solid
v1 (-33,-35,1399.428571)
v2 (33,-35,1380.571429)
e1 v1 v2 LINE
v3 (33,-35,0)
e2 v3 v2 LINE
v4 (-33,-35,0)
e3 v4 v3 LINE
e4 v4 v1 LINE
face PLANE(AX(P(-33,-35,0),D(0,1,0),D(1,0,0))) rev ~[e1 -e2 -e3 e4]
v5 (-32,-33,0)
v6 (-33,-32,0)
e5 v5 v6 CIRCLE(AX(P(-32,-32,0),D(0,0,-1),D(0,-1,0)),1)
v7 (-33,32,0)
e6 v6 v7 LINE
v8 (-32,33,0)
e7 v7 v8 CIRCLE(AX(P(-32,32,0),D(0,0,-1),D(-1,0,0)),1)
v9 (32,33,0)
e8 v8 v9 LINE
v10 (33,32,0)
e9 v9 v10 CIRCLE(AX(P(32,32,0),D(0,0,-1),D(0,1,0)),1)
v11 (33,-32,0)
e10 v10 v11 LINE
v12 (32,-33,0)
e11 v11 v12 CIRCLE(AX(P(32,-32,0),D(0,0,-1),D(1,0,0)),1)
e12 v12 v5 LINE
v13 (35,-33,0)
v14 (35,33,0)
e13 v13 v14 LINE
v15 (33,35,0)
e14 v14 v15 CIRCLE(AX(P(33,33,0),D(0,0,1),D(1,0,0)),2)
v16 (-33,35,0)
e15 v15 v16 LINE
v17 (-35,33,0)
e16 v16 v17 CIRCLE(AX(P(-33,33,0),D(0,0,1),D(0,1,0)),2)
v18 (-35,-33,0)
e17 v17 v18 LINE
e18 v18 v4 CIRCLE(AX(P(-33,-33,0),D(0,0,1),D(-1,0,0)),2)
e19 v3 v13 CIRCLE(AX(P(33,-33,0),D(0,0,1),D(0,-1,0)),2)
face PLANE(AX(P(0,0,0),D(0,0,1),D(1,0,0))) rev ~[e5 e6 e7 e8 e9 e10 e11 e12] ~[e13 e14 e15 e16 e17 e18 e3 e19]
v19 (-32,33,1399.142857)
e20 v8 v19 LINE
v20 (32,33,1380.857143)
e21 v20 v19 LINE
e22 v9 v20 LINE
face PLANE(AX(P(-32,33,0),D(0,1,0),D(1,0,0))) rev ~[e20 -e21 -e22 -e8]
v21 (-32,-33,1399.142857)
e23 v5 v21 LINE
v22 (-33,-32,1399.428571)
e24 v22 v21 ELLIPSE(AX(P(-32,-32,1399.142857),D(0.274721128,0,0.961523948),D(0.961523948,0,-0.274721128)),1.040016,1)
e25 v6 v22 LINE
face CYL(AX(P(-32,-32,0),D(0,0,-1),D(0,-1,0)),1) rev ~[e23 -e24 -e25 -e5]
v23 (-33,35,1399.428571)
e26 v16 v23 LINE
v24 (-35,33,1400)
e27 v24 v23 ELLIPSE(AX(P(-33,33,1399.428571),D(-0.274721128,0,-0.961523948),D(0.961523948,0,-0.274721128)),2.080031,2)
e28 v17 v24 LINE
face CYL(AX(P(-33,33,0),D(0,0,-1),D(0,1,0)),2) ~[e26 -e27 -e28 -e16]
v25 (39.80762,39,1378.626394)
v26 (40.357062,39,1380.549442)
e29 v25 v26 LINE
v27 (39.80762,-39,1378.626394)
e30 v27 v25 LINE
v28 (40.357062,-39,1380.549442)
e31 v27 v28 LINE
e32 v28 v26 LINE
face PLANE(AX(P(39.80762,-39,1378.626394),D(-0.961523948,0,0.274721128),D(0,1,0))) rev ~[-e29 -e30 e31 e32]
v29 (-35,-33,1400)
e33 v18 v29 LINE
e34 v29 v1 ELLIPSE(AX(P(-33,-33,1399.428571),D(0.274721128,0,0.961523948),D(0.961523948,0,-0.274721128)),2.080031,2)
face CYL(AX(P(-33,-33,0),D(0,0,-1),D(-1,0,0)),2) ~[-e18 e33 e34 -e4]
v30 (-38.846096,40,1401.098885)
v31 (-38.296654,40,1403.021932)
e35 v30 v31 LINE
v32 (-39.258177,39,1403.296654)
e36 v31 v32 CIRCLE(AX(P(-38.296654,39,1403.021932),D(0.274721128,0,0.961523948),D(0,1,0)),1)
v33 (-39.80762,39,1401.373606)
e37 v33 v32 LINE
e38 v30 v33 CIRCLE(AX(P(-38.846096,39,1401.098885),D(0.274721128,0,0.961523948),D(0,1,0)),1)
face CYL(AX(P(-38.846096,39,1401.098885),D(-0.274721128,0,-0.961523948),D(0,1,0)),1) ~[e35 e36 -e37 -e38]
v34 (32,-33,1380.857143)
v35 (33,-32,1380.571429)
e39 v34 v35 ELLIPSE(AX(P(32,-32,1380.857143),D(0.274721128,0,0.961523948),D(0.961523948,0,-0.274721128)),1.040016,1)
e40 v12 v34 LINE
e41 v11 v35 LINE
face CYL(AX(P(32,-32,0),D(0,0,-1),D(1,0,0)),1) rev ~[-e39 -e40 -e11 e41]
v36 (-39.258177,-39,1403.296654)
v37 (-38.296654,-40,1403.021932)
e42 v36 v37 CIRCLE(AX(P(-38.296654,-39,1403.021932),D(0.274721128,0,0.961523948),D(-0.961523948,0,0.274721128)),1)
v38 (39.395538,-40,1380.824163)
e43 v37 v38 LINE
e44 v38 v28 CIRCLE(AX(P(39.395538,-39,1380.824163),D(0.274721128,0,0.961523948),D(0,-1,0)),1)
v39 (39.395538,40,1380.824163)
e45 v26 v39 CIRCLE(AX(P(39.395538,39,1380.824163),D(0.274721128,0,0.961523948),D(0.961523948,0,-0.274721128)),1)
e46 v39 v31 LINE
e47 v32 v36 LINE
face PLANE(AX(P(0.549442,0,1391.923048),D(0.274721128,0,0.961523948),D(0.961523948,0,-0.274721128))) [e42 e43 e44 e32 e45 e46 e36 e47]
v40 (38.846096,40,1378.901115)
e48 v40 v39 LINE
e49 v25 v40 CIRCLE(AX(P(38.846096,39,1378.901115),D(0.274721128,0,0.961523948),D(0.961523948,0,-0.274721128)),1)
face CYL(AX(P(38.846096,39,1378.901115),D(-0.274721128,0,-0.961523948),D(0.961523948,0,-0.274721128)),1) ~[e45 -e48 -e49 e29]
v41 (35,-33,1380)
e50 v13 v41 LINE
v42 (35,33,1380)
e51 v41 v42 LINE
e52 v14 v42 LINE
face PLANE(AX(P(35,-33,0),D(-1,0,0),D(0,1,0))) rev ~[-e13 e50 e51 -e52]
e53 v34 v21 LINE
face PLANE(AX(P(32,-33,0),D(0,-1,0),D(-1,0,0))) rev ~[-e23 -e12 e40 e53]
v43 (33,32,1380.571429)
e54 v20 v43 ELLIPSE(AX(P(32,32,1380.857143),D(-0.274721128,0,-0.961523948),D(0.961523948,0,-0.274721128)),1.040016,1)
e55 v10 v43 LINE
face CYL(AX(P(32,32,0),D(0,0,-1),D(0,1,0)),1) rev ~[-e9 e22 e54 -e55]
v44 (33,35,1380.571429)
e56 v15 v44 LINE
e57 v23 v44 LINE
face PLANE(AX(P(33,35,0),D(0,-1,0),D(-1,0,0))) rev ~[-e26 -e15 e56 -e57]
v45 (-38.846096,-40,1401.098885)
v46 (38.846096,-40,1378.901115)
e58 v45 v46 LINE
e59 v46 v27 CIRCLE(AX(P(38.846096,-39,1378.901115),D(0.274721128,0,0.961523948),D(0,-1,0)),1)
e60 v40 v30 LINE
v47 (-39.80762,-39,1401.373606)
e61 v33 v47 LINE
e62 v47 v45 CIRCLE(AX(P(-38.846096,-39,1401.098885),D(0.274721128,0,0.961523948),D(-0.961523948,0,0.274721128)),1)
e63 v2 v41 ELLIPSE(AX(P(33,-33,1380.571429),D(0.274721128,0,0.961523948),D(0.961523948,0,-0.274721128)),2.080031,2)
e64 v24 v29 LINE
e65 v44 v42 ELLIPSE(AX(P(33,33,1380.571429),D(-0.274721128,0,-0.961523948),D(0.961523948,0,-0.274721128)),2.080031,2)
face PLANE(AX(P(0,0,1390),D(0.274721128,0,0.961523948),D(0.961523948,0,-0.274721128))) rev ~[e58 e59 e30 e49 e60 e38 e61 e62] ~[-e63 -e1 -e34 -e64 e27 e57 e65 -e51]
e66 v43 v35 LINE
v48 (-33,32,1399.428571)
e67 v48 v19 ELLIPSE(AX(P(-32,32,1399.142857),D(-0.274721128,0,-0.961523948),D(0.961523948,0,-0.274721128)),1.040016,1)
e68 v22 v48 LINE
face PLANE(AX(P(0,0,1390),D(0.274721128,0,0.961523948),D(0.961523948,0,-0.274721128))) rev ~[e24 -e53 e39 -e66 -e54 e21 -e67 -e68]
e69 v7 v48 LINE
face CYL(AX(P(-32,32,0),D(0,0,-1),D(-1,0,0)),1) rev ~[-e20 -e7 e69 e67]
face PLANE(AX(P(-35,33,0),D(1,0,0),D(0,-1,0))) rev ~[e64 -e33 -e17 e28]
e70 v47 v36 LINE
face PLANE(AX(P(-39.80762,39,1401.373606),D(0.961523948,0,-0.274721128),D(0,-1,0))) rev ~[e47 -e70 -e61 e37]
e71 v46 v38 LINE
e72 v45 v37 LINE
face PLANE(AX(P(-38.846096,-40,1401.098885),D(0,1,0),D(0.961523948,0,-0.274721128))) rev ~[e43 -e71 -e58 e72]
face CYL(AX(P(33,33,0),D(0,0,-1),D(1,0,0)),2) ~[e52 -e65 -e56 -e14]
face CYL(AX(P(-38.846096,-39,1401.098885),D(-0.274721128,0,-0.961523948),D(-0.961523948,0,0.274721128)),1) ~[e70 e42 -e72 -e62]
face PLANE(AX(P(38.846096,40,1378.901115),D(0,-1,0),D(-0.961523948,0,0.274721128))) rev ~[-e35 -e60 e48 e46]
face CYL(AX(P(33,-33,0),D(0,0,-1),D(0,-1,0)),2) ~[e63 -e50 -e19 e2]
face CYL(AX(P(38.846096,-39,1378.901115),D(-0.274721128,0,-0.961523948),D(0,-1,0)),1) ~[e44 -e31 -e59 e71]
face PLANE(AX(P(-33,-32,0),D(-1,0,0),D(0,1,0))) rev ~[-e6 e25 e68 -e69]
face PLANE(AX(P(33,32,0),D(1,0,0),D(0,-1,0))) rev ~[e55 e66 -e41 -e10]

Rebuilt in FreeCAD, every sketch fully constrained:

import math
import FreeCAD as App
import Part
import Sketcher

doc = App.newDocument("Part")
params = doc.addObject("Spreadsheet::Sheet", "Params")
for row, (alias, value) in enumerate([
    ("sketch1_radius", "2 mm"),
    ("sketch1_radius2", "1 mm"),
    ("sketch1_width", "66 mm"),
    ("pad1_length", "1400 mm"),
    ("sketch2_width", "70 mm"),
    ("sketch2_height", "20 mm"),
    ("sketch3_radius", "1 mm"),
    ("sketch3_height", "78 mm"),
    ("pad2_length", "2 mm"),
], start=1):
    params.set(f"A{row}", alias)
    params.set(f"B{row}", "=" + value)
    params.setAlias(f"B{row}", alias)

body = doc.addObject("PartDesign::Body", "Body")

sketch1 = body.newObject("Sketcher::SketchObject", "Sketch")
sketch1.AttachmentSupport = (doc.getObject("XY_Plane"), [""])
sketch1.MapMode = "FlatFace"
sketch1.addGeometry([
    Part.ArcOfCircle(Part.Circle(App.Vector(-33, -33, 0), App.Vector(0, 0, 1), 2), math.radians(180), math.radians(270)),
    Part.LineSegment(App.Vector(-33, -35, 0), App.Vector(33, -35, 0)),
    Part.ArcOfCircle(Part.Circle(App.Vector(33, -33, 0), App.Vector(0, 0, 1), 2), math.radians(-90), math.radians(0)),
    Part.LineSegment(App.Vector(35, -33, 0), App.Vector(35, 33, 0)),
    Part.ArcOfCircle(Part.Circle(App.Vector(33, 33, 0), App.Vector(0, 0, 1), 2), math.radians(0), math.radians(90)),
    Part.LineSegment(App.Vector(33, 35, 0), App.Vector(-33, 35, 0)),
    Part.ArcOfCircle(Part.Circle(App.Vector(-33, 33, 0), App.Vector(0, 0, 1), 2), math.radians(90), math.radians(180)),
    Part.LineSegment(App.Vector(-35, 33, 0), App.Vector(-35, -33, 0)),
    Part.ArcOfCircle(Part.Circle(App.Vector(32, -32, 0), App.Vector(0, 0, 1), 1), math.radians(-90), math.radians(0)),
    Part.LineSegment(App.Vector(32, -33, 0), App.Vector(-32, -33, 0)),
    Part.ArcOfCircle(Part.Circle(App.Vector(-32, -32, 0), App.Vector(0, 0, 1), 1), math.radians(180), math.radians(270)),
    Part.LineSegment(App.Vector(-33, -32, 0), App.Vector(-33, 32, 0)),
    Part.ArcOfCircle(Part.Circle(App.Vector(-32, 32, 0), App.Vector(0, 0, 1), 1), math.radians(90), math.radians(180)),
    Part.LineSegment(App.Vector(-32, 33, 0), App.Vector(32, 33, 0)),
    Part.ArcOfCircle(Part.Circle(App.Vector(32, 32, 0), App.Vector(0, 0, 1), 1), math.radians(0), math.radians(90)),
    Part.LineSegment(App.Vector(33, 32, 0), App.Vector(33, -32, 0)),
], False)
sketch1.addConstraint([
    Sketcher.Constraint("Tangent", 0, 2, 1, 1),
    Sketcher.Constraint("Tangent", 1, 2, 2, 1),
    Sketcher.Constraint("Tangent", 2, 2, 3, 1),
    Sketcher.Constraint("Tangent", 3, 2, 4, 1),
    Sketcher.Constraint("Tangent", 4, 2, 5, 1),
    Sketcher.Constraint("Tangent", 5, 2, 6, 1),
    Sketcher.Constraint("Tangent", 6, 2, 7, 1),
    Sketcher.Constraint("Tangent", 7, 2, 0, 1),
    Sketcher.Constraint("Tangent", 8, 1, 9, 1),
    Sketcher.Constraint("Tangent", 9, 2, 10, 2),
    Sketcher.Constraint("Tangent", 10, 1, 11, 1),
    Sketcher.Constraint("Tangent", 11, 2, 12, 2),
    Sketcher.Constraint("Tangent", 12, 1, 13, 1),
    Sketcher.Constraint("Tangent", 13, 2, 14, 2),
    Sketcher.Constraint("Tangent", 14, 1, 15, 1),
    Sketcher.Constraint("Tangent", 15, 2, 8, 2),
    Sketcher.Constraint("Horizontal", 1),
    Sketcher.Constraint("Vertical", 3),
    Sketcher.Constraint("Horizontal", 5),
    Sketcher.Constraint("Vertical", 7),
    Sketcher.Constraint("Horizontal", 9),
    Sketcher.Constraint("Vertical", 11),
    Sketcher.Constraint("Horizontal", 13),
    Sketcher.Constraint("Vertical", 15),
    Sketcher.Constraint("Equal", 0, 2),
    Sketcher.Constraint("Equal", 2, 4),
    Sketcher.Constraint("Equal", 4, 6),
    Sketcher.Constraint("Equal", 8, 10),
    Sketcher.Constraint("Equal", 10, 12),
    Sketcher.Constraint("Equal", 12, 14),
    Sketcher.Constraint("Symmetric", 0, 3, 4, 3, -1, 1),
    Sketcher.Constraint("Symmetric", 8, 3, 12, 3, -1, 1),
    Sketcher.Constraint("Horizontal", 7, 2, 8, 1),
    Sketcher.Constraint("Vertical", 5, 2, 10, 1),
    Sketcher.Constraint("Equal", 5, 3),
    Sketcher.Constraint("Radius", 0, 2.0),
    Sketcher.Constraint("Radius", 8, 1.0),
    Sketcher.Constraint("DistanceX", 1, 1, 1, 2, 66.0),
])
sketch1.setExpression("Constraints[35]", "Params.sketch1_radius")
sketch1.setExpression("Constraints[36]", "Params.sketch1_radius2")
sketch1.setExpression("Constraints[37]", "Params.sketch1_width")
pad1 = body.newObject("PartDesign::Pad", "Pad")
pad1.Profile = sketch1
pad1.setExpression("Length", "Params.pad1_length")

sketch2 = body.newObject("Sketcher::SketchObject", "Sketch001")
sketch2.AttachmentSupport = (doc.getObject("XZ_Plane"), [""])
sketch2.MapMode = "FlatFace"
sketch2.addGeometry([
    Part.LineSegment(App.Vector(-35, 1400, 0), App.Vector(35, 1380, 0)),
    Part.LineSegment(App.Vector(35, 1380, 0), App.Vector(35, 1400, 0)),
    Part.LineSegment(App.Vector(35, 1400, 0), App.Vector(-35, 1400, 0)),
], False)
sketch2.addConstraint([
    Sketcher.Constraint("Coincident", 0, 2, 1, 1),
    Sketcher.Constraint("Coincident", 1, 2, 2, 1),
    Sketcher.Constraint("Coincident", 2, 2, 0, 1),
    Sketcher.Constraint("Vertical", 1),
    Sketcher.Constraint("Horizontal", 2),
    Sketcher.Constraint("DistanceX", 2, 2, 2, 1, 70.0),
    Sketcher.Constraint("DistanceY", 1, 1, 1, 2, 20.0),
    Sketcher.Constraint("DistanceX", -1, 1, 0, 2, 35.0),
    Sketcher.Constraint("DistanceY", -1, 1, 0, 2, 1380.0),
])
sketch2.setExpression("Constraints[5]", "Params.sketch2_width")
sketch2.setExpression("Constraints[6]", "Params.sketch2_height")
pocket1 = body.newObject("PartDesign::Pocket", "Pocket")
pocket1.Profile = sketch2
pocket1.Type = "ThroughAll"
pocket1.Midplane = True

sketch3 = body.newObject("Sketcher::SketchObject", "Sketch002")
sketch3.Placement = App.Placement(App.Vector(367.169811, 0, 1285.09434), App.Rotation(App.Vector(0.961523948, 0, -0.274721128), App.Vector(0, 1.000000001, 0), App.Vector(0.274721128, 0, 0.961523948), "ZXY"))
sketch3.addGeometry([
    Part.LineSegment(App.Vector(-341.5, 40, 0), App.Vector(-422.3, 40, 0)),
    Part.ArcOfCircle(Part.Circle(App.Vector(-422.3, 39, 0), App.Vector(0, 0, 1), 1), math.radians(90), math.radians(180)),
    Part.LineSegment(App.Vector(-423.3, 39, 0), App.Vector(-423.3, -39, 0)),
    Part.ArcOfCircle(Part.Circle(App.Vector(-422.3, -39, 0), App.Vector(0, 0, 1), 1), math.radians(180), math.radians(270)),
    Part.LineSegment(App.Vector(-422.3, -40, 0), App.Vector(-341.5, -40, 0)),
    Part.ArcOfCircle(Part.Circle(App.Vector(-341.5, -39, 0), App.Vector(0, 0, 1), 1), math.radians(-90), math.radians(0)),
    Part.LineSegment(App.Vector(-340.5, -39, 0), App.Vector(-340.5, 39, 0)),
    Part.ArcOfCircle(Part.Circle(App.Vector(-341.5, 39, 0), App.Vector(0, 0, 1), 1), math.radians(0), math.radians(90)),
], False)
sketch3.addConstraint([
    Sketcher.Constraint("Tangent", 0, 2, 1, 1),
    Sketcher.Constraint("Tangent", 1, 2, 2, 1),
    Sketcher.Constraint("Tangent", 2, 2, 3, 1),
    Sketcher.Constraint("Tangent", 3, 2, 4, 1),
    Sketcher.Constraint("Tangent", 4, 2, 5, 1),
    Sketcher.Constraint("Tangent", 5, 2, 6, 1),
    Sketcher.Constraint("Tangent", 6, 2, 7, 1),
    Sketcher.Constraint("Tangent", 7, 2, 0, 1),
    Sketcher.Constraint("Horizontal", 0),
    Sketcher.Constraint("Vertical", 2),
    Sketcher.Constraint("Horizontal", 4),
    Sketcher.Constraint("Vertical", 6),
    Sketcher.Constraint("Equal", 1, 3),
    Sketcher.Constraint("Equal", 3, 5),
    Sketcher.Constraint("Equal", 5, 7),
    Sketcher.Constraint("Radius", 1, 1.0),
    Sketcher.Constraint("DistanceY", 2, 2, 2, 1, 78.0),
    Sketcher.Constraint("DistanceY", -1, 1, 1, 3, 39.0),
    Sketcher.Constraint("DistanceX", 0, 2, 0, 1, 80.801099),
    Sketcher.Constraint("DistanceX", 5, 3, -1, 1, 341.461819),
])
sketch3.setExpression("Constraints[15]", "Params.sketch3_radius")
sketch3.setExpression("Constraints[16]", "Params.sketch3_height")
pad2 = body.newObject("PartDesign::Pad", "Pad001")
pad2.Profile = sketch3
pad2.setExpression("Length", "Params.pad2_length")

doc.recompute()
